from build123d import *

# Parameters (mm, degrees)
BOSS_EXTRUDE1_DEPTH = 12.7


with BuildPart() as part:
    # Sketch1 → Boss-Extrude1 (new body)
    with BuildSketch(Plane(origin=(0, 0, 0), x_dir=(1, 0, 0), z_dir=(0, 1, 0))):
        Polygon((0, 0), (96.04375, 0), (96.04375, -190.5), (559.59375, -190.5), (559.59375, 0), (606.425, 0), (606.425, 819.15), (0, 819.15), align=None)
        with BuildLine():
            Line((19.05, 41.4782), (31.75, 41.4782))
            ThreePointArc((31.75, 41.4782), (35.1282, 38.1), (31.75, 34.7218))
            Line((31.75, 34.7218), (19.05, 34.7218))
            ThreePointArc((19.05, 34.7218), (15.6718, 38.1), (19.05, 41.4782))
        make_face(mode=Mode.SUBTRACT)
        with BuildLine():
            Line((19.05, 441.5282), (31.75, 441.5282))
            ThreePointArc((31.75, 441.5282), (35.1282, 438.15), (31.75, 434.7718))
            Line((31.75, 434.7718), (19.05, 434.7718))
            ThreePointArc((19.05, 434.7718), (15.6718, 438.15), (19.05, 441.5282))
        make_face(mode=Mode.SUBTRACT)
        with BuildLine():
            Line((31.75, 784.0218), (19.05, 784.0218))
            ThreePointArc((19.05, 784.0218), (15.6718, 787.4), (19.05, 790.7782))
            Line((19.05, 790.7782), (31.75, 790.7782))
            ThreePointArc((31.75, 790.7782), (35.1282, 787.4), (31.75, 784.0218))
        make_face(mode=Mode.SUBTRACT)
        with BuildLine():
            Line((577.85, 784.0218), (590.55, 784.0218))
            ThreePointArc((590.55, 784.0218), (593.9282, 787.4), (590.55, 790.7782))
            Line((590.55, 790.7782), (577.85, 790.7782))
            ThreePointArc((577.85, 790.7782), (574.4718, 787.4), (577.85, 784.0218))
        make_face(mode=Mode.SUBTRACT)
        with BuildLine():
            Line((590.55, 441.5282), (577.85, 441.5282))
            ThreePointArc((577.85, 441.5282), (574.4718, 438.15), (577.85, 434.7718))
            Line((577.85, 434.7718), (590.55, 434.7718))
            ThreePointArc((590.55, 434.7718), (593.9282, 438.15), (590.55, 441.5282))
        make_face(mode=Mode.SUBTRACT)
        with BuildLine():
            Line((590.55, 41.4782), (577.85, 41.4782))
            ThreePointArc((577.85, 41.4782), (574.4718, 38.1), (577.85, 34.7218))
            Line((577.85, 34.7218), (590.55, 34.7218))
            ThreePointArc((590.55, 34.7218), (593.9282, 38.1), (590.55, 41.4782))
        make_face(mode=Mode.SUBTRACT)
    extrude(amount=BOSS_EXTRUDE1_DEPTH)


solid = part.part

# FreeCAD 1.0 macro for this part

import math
import FreeCAD as App
import Part
import Sketcher
Q = App.Units.Quantity


def add_polygon(sketch, points):
    """Adds a closed chain of lines whose ends are joined by coincident constraints."""
    first, n = sketch.GeometryCount, len(points)
    for a, b in zip(points, points[1:] + points[:1]):
        sketch.addGeometry(Part.LineSegment(App.Vector(*a, 0), App.Vector(*b, 0)), False)
    for i in range(n):
        sketch.addConstraint(Sketcher.Constraint("Coincident", first + i, 2, first + (i + 1) % n, 1))

doc = App.newDocument("Part")
body = doc.addObject("PartDesign::Body", "Body")

# Sketch on XZ plane
sketch1 = body.newObject("Sketcher::SketchObject", "Sketch")
sketch1.AttachmentSupport = (doc.getObject("XZ_Plane"), [""])
sketch1.MapMode = "FlatFace"
add_polygon(sketch1, [(0, 0), (96, 0), (96, 190.5), (559.6, 190.5), (559.6, 0), (606.4, 0), (606.4, -819.1), (0, -819.1)])  # lines 0-7
sketch1.addGeometry(Part.ArcOfCircle(Part.Circle(App.Vector(19.1, -38.1, 0), App.Vector(0, 0, 1), 3.4), math.radians(90), math.radians(270)), False)  # 8
sketch1.addGeometry(Part.LineSegment(App.Vector(19.1, -41.5, 0), App.Vector(31.8, -41.5, 0)), False)  # 9
sketch1.addGeometry(Part.ArcOfCircle(Part.Circle(App.Vector(31.8, -38.1, 0), App.Vector(0, 0, 1), 3.4), math.radians(-90), math.radians(90)), False)  # 10
sketch1.addGeometry(Part.LineSegment(App.Vector(31.8, -34.7, 0), App.Vector(19.1, -34.7, 0)), False)  # 11
sketch1.addGeometry(Part.LineSegment(App.Vector(577.9, -41.5, 0), App.Vector(590.5, -41.5, 0)), False)  # 12
sketch1.addGeometry(Part.ArcOfCircle(Part.Circle(App.Vector(590.5, -38.1, 0), App.Vector(0, 0, 1), 3.4), math.radians(-90), math.radians(90)), False)  # 13
sketch1.addGeometry(Part.LineSegment(App.Vector(590.5, -34.7, 0), App.Vector(577.9, -34.7, 0)), False)  # 14
sketch1.addGeometry(Part.ArcOfCircle(Part.Circle(App.Vector(577.9, -38.1, 0), App.Vector(0, 0, 1), 3.4), math.radians(90), math.radians(270)), False)  # 15
sketch1.addGeometry(Part.ArcOfCircle(Part.Circle(App.Vector(19.1, -438.1, 0), App.Vector(0, 0, 1), 3.4), math.radians(90), math.radians(270)), False)  # 16
sketch1.addGeometry(Part.LineSegment(App.Vector(19.1, -441.5, 0), App.Vector(31.8, -441.5, 0)), False)  # 17
sketch1.addGeometry(Part.ArcOfCircle(Part.Circle(App.Vector(31.8, -438.1, 0), App.Vector(0, 0, 1), 3.4), math.radians(-90), math.radians(90)), False)  # 18
sketch1.addGeometry(Part.LineSegment(App.Vector(31.8, -434.8, 0), App.Vector(19.1, -434.8, 0)), False)  # 19
sketch1.addGeometry(Part.ArcOfCircle(Part.Circle(App.Vector(31.8, -787.4, 0), App.Vector(0, 0, 1), 3.4), math.radians(-90), math.radians(90)), False)  # 20
sketch1.addGeometry(Part.LineSegment(App.Vector(31.8, -784, 0), App.Vector(19.1, -784, 0)), False)  # 21
sketch1.addGeometry(Part.ArcOfCircle(Part.Circle(App.Vector(19.1, -787.4, 0), App.Vector(0, 0, 1), 3.4), math.radians(90), math.radians(270)), False)  # 22
sketch1.addGeometry(Part.LineSegment(App.Vector(19.1, -790.8, 0), App.Vector(31.8, -790.8, 0)), False)  # 23
sketch1.addGeometry(Part.LineSegment(App.Vector(577.9, -441.5, 0), App.Vector(590.5, -441.5, 0)), False)  # 24
sketch1.addGeometry(Part.ArcOfCircle(Part.Circle(App.Vector(590.5, -438.1, 0), App.Vector(0, 0, 1), 3.4), math.radians(-90), math.radians(90)), False)  # 25
sketch1.addGeometry(Part.LineSegment(App.Vector(590.5, -434.8, 0), App.Vector(577.9, -434.8, 0)), False)  # 26
sketch1.addGeometry(Part.ArcOfCircle(Part.Circle(App.Vector(577.9, -438.1, 0), App.Vector(0, 0, 1), 3.4), math.radians(90), math.radians(270)), False)  # 27
sketch1.addGeometry(Part.LineSegment(App.Vector(590.5, -784, 0), App.Vector(577.9, -784, 0)), False)  # 28
sketch1.addGeometry(Part.ArcOfCircle(Part.Circle(App.Vector(577.9, -787.4, 0), App.Vector(0, 0, 1), 3.4), math.radians(90), math.radians(270)), False)  # 29
sketch1.addGeometry(Part.LineSegment(App.Vector(577.9, -790.8, 0), App.Vector(590.5, -790.8, 0)), False)  # 30
sketch1.addGeometry(Part.ArcOfCircle(Part.Circle(App.Vector(590.5, -787.4, 0), App.Vector(0, 0, 1), 3.4), math.radians(-90), math.radians(90)), False)  # 31
sketch1.addConstraint(Sketcher.Constraint("Tangent", 8, 2, 9, 1))
sketch1.addConstraint(Sketcher.Constraint("Tangent", 9, 2, 10, 1))
sketch1.addConstraint(Sketcher.Constraint("Tangent", 10, 2, 11, 1))
sketch1.addConstraint(Sketcher.Constraint("Tangent", 11, 2, 8, 1))
sketch1.addConstraint(Sketcher.Constraint("Tangent", 12, 2, 13, 1))
sketch1.addConstraint(Sketcher.Constraint("Tangent", 13, 2, 14, 1))
sketch1.addConstraint(Sketcher.Constraint("Tangent", 14, 2, 15, 1))
sketch1.addConstraint(Sketcher.Constraint("Tangent", 15, 2, 12, 1))
sketch1.addConstraint(Sketcher.Constraint("Tangent", 16, 2, 17, 1))
sketch1.addConstraint(Sketcher.Constraint("Tangent", 17, 2, 18, 1))
sketch1.addConstraint(Sketcher.Constraint("Tangent", 18, 2, 19, 1))
sketch1.addConstraint(Sketcher.Constraint("Tangent", 19, 2, 16, 1))
sketch1.addConstraint(Sketcher.Constraint("Tangent", 20, 2, 21, 1))
sketch1.addConstraint(Sketcher.Constraint("Tangent", 21, 2, 22, 1))
sketch1.addConstraint(Sketcher.Constraint("Tangent", 22, 2, 23, 1))
sketch1.addConstraint(Sketcher.Constraint("Tangent", 23, 2, 20, 1))
sketch1.addConstraint(Sketcher.Constraint("Tangent", 24, 2, 25, 1))
sketch1.addConstraint(Sketcher.Constraint("Tangent", 25, 2, 26, 1))
sketch1.addConstraint(Sketcher.Constraint("Tangent", 26, 2, 27, 1))
sketch1.addConstraint(Sketcher.Constraint("Tangent", 27, 2, 24, 1))
sketch1.addConstraint(Sketcher.Constraint("Tangent", 28, 2, 29, 1))
sketch1.addConstraint(Sketcher.Constraint("Tangent", 29, 2, 30, 1))
sketch1.addConstraint(Sketcher.Constraint("Tangent", 30, 2, 31, 1))
sketch1.addConstraint(Sketcher.Constraint("Tangent", 31, 2, 28, 1))
sketch1.addConstraint(Sketcher.Constraint("Horizontal", 0))
sketch1.addConstraint(Sketcher.Constraint("Vertical", 1))
sketch1.addConstraint(Sketcher.Constraint("Horizontal", 2))
sketch1.addConstraint(Sketcher.Constraint("Vertical", 3))
sketch1.addConstraint(Sketcher.Constraint("Horizontal", 4))
sketch1.addConstraint(Sketcher.Constraint("Vertical", 5))
sketch1.addConstraint(Sketcher.Constraint("Horizontal", 6))
sketch1.addConstraint(Sketcher.Constraint("Vertical", 7))
sketch1.addConstraint(Sketcher.Constraint("Horizontal", 9))
sketch1.addConstraint(Sketcher.Constraint("Horizontal", 11))
sketch1.addConstraint(Sketcher.Constraint("Horizontal", 12))
sketch1.addConstraint(Sketcher.Constraint("Horizontal", 14))
sketch1.addConstraint(Sketcher.Constraint("Horizontal", 17))
sketch1.addConstraint(Sketcher.Constraint("Horizontal", 19))
sketch1.addConstraint(Sketcher.Constraint("Horizontal", 21))
sketch1.addConstraint(Sketcher.Constraint("Horizontal", 23))
sketch1.addConstraint(Sketcher.Constraint("Horizontal", 24))
sketch1.addConstraint(Sketcher.Constraint("Horizontal", 26))
sketch1.addConstraint(Sketcher.Constraint("Horizontal", 28))
sketch1.addConstraint(Sketcher.Constraint("Horizontal", 30))
sketch1.addConstraint(Sketcher.Constraint("Coincident", 7, 2, -1, 1))
sketch1.addConstraint(Sketcher.Constraint("Equal", 10, 13))
sketch1.addConstraint(Sketcher.Constraint("Equal", 15, 16))
sketch1.addConstraint(Sketcher.Constraint("Equal", 18, 20))
sketch1.addConstraint(Sketcher.Constraint("Equal", 22, 25))
sketch1.addConstraint(Sketcher.Constraint("Equal", 27, 29))
sketch1.addConstraint(Sketcher.Constraint("PointOnObject", 3, 2, -1))
sketch1.addConstraint(Sketcher.Constraint("Horizontal", 10, 3, 13, 3))
sketch1.addConstraint(Sketcher.Constraint("Horizontal", 18, 3, 25, 3))
sketch1.addConstraint(Sketcher.Constraint("Horizontal", 22, 3, 29, 3))
sketch1.addConstraint(Sketcher.Constraint("Vertical", 8, 3, 16, 3))
sketch1.addConstraint(Sketcher.Constraint("Vertical", 10, 3, 18, 3))
sketch1.addConstraint(Sketcher.Constraint("Vertical", 18, 3, 20, 3))
sketch1.addConstraint(Sketcher.Constraint("Vertical", 16, 3, 22, 3))
sketch1.addConstraint(Sketcher.Constraint("Vertical", 13, 3, 25, 3))
sketch1.addConstraint(Sketcher.Constraint("Vertical", 15, 3, 27, 3))
sketch1.addConstraint(Sketcher.Constraint("Vertical", 27, 3, 29, 3))
sketch1.addConstraint(Sketcher.Constraint("Vertical", 25, 3, 31, 3))
sketch1.addConstraint(Sketcher.Constraint("Equal", 11, 12))
sketch1.addConstraint(Sketcher.Constraint("DistanceX", 9, 1, 9, 2, Q("0.5 in")))
sketch1.addConstraint(Sketcher.Constraint("DistanceY", 1, 1, 1, 2, Q("7.5 in")))
sketch1.addConstraint(Sketcher.Constraint("DistanceY", 20, 3, -1, 1, Q("31 in")))
sketch1.addConstraint(Sketcher.Constraint("Radius", 8, Q("0.133 in")))
sketch1.addConstraint(Sketcher.Constraint("DistanceX", 10, 3, 13, 3, Q("22 in")))
sketch1.addConstraint(Sketcher.Constraint("DistanceY", 10, 3, 1, 2, Q("9 in")))
sketch1.addConstraint(Sketcher.Constraint("DistanceY", 5, 2, 25, 3, Q("15 in")))
sketch1.addConstraint(Sketcher.Constraint("DistanceX", 2, 1, 2, 2, Q("18.25 in")))
sketch1.addConstraint(Sketcher.Constraint("DistanceY", 5, 2, 5, 1, Q("32.25 in")))
sketch1.addConstraint(Sketcher.Constraint("DistanceX", 0, 1, 0, 2, Q("3.78125 in")))
sketch1.addConstraint(Sketcher.Constraint("DistanceX", 4, 1, 4, 2, Q("1.84375 in")))
sketch1.addConstraint(Sketcher.Constraint("DistanceX", -1, 1, 8, 3, Q("0.75 in")))
pad1 = body.newObject("PartDesign::Pad", "Pad")
pad1.Profile = sketch1
pad1.Length = Q("0.5 in")
pad1.Reversed = True

doc.recompute()
